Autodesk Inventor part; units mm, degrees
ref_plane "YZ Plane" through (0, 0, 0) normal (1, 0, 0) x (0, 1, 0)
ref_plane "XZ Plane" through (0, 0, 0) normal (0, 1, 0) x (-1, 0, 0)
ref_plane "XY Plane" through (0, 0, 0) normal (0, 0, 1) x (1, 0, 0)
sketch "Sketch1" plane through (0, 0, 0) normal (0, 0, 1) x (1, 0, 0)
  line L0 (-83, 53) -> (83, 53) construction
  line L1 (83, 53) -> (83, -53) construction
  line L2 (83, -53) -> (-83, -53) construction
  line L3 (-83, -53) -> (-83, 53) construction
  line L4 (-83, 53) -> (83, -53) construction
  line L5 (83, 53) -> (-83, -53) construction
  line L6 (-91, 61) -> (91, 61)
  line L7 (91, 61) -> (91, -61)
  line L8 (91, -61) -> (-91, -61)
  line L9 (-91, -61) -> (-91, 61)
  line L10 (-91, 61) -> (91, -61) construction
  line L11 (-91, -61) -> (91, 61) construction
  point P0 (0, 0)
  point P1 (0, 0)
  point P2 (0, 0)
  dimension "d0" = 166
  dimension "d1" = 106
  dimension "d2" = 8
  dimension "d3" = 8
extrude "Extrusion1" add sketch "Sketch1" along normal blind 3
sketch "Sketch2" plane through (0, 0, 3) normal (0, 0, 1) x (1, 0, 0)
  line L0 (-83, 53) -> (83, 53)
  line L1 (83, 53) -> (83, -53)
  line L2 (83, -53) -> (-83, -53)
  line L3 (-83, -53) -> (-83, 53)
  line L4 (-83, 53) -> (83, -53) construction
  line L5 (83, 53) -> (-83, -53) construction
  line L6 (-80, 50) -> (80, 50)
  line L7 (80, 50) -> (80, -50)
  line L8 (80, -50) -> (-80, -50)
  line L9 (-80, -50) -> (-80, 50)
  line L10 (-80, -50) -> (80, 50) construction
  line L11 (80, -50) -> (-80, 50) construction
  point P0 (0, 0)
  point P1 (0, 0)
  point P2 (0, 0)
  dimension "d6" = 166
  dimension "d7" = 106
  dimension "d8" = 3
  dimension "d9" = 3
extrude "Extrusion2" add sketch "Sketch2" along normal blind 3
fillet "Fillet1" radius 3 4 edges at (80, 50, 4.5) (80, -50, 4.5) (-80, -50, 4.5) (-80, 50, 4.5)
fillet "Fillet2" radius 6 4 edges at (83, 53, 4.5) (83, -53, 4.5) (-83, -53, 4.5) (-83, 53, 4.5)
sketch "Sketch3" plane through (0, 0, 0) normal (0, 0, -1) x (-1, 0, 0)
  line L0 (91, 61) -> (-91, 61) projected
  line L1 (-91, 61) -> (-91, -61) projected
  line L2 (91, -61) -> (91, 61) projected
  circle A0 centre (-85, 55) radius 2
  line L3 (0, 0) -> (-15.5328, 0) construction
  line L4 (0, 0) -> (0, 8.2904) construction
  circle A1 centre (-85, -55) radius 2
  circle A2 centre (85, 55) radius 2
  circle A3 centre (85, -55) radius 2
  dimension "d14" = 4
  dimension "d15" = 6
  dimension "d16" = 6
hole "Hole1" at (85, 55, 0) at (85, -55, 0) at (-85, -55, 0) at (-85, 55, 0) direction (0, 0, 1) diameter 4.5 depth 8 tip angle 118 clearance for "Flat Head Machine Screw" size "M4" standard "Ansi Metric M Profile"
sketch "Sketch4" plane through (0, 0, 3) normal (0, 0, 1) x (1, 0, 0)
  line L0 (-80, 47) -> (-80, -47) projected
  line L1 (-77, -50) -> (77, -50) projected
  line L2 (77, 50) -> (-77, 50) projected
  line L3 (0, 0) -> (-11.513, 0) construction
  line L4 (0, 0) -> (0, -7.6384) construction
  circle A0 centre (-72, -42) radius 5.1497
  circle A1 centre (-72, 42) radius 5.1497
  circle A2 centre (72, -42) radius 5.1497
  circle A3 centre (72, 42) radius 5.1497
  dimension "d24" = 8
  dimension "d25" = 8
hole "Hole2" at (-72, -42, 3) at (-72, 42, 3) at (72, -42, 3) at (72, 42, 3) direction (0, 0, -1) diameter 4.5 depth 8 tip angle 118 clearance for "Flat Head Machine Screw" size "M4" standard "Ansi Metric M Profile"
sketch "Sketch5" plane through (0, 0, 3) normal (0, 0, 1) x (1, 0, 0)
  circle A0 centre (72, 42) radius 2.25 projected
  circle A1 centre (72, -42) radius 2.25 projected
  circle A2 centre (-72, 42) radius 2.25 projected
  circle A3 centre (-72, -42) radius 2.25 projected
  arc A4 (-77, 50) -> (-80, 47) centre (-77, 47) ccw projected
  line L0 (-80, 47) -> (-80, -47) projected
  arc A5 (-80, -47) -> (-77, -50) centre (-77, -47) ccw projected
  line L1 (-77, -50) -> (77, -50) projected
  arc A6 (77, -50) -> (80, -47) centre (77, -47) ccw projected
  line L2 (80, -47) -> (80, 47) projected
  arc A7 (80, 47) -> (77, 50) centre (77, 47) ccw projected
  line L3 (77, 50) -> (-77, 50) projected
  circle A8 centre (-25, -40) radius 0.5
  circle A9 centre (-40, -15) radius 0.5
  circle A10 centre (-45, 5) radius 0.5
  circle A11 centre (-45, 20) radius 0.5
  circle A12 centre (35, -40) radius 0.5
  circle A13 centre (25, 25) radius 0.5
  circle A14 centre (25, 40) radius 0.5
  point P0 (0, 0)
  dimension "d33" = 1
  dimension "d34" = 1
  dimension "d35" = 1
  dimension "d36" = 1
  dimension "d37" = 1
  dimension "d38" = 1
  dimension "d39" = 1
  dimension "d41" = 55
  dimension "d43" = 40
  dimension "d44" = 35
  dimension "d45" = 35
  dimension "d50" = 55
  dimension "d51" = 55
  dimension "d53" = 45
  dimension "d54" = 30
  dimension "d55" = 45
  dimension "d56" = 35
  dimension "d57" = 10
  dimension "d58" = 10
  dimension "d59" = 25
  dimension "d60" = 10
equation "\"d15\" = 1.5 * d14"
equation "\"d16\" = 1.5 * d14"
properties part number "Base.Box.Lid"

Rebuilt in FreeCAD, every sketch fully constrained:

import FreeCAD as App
import Part
import Sketcher
Q = App.Units.Quantity


def edges_at(feature, points):
    """Names of the edges that pass closest to the given points."""
    edges = feature.Shape.Edges
    near = lambda p: min(range(len(edges)), key=lambda i: edges[i].distToShape(Part.Vertex(*p))[0])
    return sorted({f"Edge{near(p) + 1}" for p in points})


def add_polygon(sketch, points):
    """Adds a closed chain of lines whose ends are joined by coincident constraints."""
    first, n = sketch.GeometryCount, len(points)
    for a, b in zip(points, points[1:] + points[:1]):
        sketch.addGeometry(Part.LineSegment(App.Vector(*a, 0), App.Vector(*b, 0)), False)
    for i in range(n):
        sketch.addConstraint(Sketcher.Constraint("Coincident", first + i, 2, first + (i + 1) % n, 1))

doc = App.newDocument("Part")
body = doc.addObject("PartDesign::Body", "Body")

sketch1 = body.newObject("Sketcher::SketchObject", "Sketch")
sketch1.AttachmentSupport = (doc.getObject("XY_Plane"), [""])
sketch1.MapMode = "FlatFace"
add_polygon(sketch1, [(91, 61), (-91, 61), (-91, -61), (91, -61)])
sketch1.addConstraint([
    Sketcher.Constraint("Horizontal", 0),
    Sketcher.Constraint("Vertical", 1),
    Sketcher.Constraint("Horizontal", 2),
    Sketcher.Constraint("Vertical", 3),
    Sketcher.Constraint("Symmetric", 0, 2, 2, 2, -1, 1),
    Sketcher.Constraint("DistanceX", 0, 2, 0, 1, Q("182 mm")),
    Sketcher.Constraint("DistanceY", 1, 2, 1, 1, Q("122 mm")),
])
pad1 = body.newObject("PartDesign::Pad", "Pad")
pad1.Profile = sketch1
pad1.Length = 3

sketch2 = body.newObject("Sketcher::SketchObject", "Sketch001")
sketch2.AttachmentSupport = (doc.getObject("XY_Plane"), [""])
sketch2.MapMode = "FlatFace"
sketch2.AttachmentOffset = App.Placement(App.Vector(0, 0, 3), App.Rotation())
add_polygon(sketch2, [(83, 53), (-83, 53), (-83, -53), (83, -53)])
add_polygon(sketch2, [(-80, -50), (-80, 50), (80, 50), (80, -50)])
sketch2.addConstraint([
    Sketcher.Constraint("Horizontal", 0),
    Sketcher.Constraint("Vertical", 1),
    Sketcher.Constraint("Horizontal", 2),
    Sketcher.Constraint("Vertical", 3),
    Sketcher.Constraint("Vertical", 4),
    Sketcher.Constraint("Horizontal", 5),
    Sketcher.Constraint("Vertical", 6),
    Sketcher.Constraint("Horizontal", 7),
    Sketcher.Constraint("Symmetric", 0, 2, 2, 2, -1, 1),
    Sketcher.Constraint("Symmetric", 4, 2, 6, 2, -1, 1),
    Sketcher.Constraint("DistanceX", 0, 2, 0, 1, Q("166 mm")),
    Sketcher.Constraint("DistanceY", 1, 2, 1, 1, Q("106 mm")),
    Sketcher.Constraint("DistanceX", 0, 2, 4, 2, Q("3 mm")),
    Sketcher.Constraint("DistanceY", 4, 2, 0, 2, Q("3 mm")),
])
pad2 = body.newObject("PartDesign::Pad", "Pad001")
pad2.Profile = sketch2
pad2.Length = 3
doc.recompute()

fillet = body.newObject("PartDesign::Fillet", "Fillet")
fillet.Base = (pad2, edges_at(pad2, [
    (80, 50, 4.5),
    (80, -50, 4.5),
    (-80, -50, 4.5),
    (-80, 50, 4.5),
]))
fillet.Radius = 3
doc.recompute()

fillet2 = body.newObject("PartDesign::Fillet", "Fillet001")
fillet2.Base = (fillet, edges_at(fillet, [
    (83, 53, 4.5),
    (83, -53, 4.5),
    (-83, -53, 4.5),
    (-83, 53, 4.5),
]))
fillet2.Radius = 6

sketch3 = body.newObject("Sketcher::SketchObject", "Sketch002")
sketch3.AttachmentSupport = (doc.getObject("XY_Plane"), [""])
sketch3.MapMode = "FlatFace"
sketch3.addGeometry([
    Part.Circle(App.Vector(85, 55, 0), App.Vector(0, 0, 1), 2.2),
    Part.Circle(App.Vector(85, -55, 0), App.Vector(0, 0, 1), 2.2),
    Part.Circle(App.Vector(-85, -55, 0), App.Vector(0, 0, 1), 2.2),
    Part.Circle(App.Vector(-85, 55, 0), App.Vector(0, 0, 1), 2.2),
], False)
sketch3.addConstraint([
    Sketcher.Constraint("Equal", 0, 1),
    Sketcher.Constraint("Equal", 1, 2),
    Sketcher.Constraint("Equal", 2, 3),
    Sketcher.Constraint("Symmetric", 0, 3, 2, 3, -1, 1),
    Sketcher.Constraint("Symmetric", 1, 3, 3, 3, -1, 1),
    Sketcher.Constraint("Symmetric", 1, 3, 2, 3, -2),
    Sketcher.Constraint("Diameter", 0, Q("4.5 mm")),
    Sketcher.Constraint("DistanceX", -1, 1, 0, 3, Q("85 mm")),
    Sketcher.Constraint("DistanceY", -1, 1, 0, 3, Q("55 mm")),
])
doc.recompute()
hole = body.newObject("PartDesign::Hole", "Hole")
hole.Profile = sketch3
hole.ThreadType = "None"
hole.Diameter = 4.5
hole.DepthType = "Dimension"
hole.Depth = 8
hole.DrillPoint = "Angled"
hole.DrillPointAngle = 118
hole.Reversed = True

sketch4 = body.newObject("Sketcher::SketchObject", "Sketch003")
sketch4.AttachmentSupport = (doc.getObject("XY_Plane"), [""])
sketch4.MapMode = "FlatFace"
sketch4.AttachmentOffset = App.Placement(App.Vector(0, 0, 3), App.Rotation())
sketch4.addGeometry([
    Part.Circle(App.Vector(-72, -42, 0), App.Vector(0, 0, 1), 2.2),
    Part.Circle(App.Vector(-72, 42, 0), App.Vector(0, 0, 1), 2.2),
    Part.Circle(App.Vector(72, -42, 0), App.Vector(0, 0, 1), 2.2),
    Part.Circle(App.Vector(72, 42, 0), App.Vector(0, 0, 1), 2.2),
], False)
sketch4.addConstraint([
    Sketcher.Constraint("Equal", 0, 1),
    Sketcher.Constraint("Equal", 1, 2),
    Sketcher.Constraint("Equal", 2, 3),
    Sketcher.Constraint("Symmetric", 1, 3, 2, 3, -1, 1),
    Sketcher.Constraint("Symmetric", 0, 3, 3, 3, -1, 1),
    Sketcher.Constraint("Symmetric", 0, 3, 2, 3, -2),
    Sketcher.Constraint("Diameter", 0, Q("4.5 mm")),
    Sketcher.Constraint("DistanceX", 0, 3, -1, 1, Q("72 mm")),
    Sketcher.Constraint("DistanceY", 0, 3, -1, 1, Q("42 mm")),
])
doc.recompute()
hole2 = body.newObject("PartDesign::Hole", "Hole001")
hole2.Profile = sketch4
hole2.ThreadType = "None"
hole2.Diameter = 4.5
hole2.DepthType = "Dimension"
hole2.Depth = 8
hole2.DrillPoint = "Angled"
hole2.DrillPointAngle = 118

doc.recompute()
